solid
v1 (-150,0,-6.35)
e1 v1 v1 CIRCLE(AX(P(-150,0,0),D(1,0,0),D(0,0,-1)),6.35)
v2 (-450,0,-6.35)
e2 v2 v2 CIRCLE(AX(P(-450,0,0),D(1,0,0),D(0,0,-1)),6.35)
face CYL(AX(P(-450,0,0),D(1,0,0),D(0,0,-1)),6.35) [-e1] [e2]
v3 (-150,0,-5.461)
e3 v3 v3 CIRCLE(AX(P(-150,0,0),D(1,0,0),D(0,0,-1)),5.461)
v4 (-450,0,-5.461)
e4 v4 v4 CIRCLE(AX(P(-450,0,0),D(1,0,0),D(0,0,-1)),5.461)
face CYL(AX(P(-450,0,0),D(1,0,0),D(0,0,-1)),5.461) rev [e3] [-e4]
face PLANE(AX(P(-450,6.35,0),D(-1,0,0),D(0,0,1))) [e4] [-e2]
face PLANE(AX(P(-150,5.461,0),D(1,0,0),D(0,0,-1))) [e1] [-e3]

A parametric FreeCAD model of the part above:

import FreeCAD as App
import Part
import Sketcher

V = App.Vector
Q = App.Units.Quantity

doc = App.newDocument("Part")
params = doc.addObject("Spreadsheet::Sheet", "Params")
for row, (alias, value) in enumerate([
    ("sketch1_width", "300 mm"),
    ("revolution_angle", "360 deg"),
], start=1):
    params.set(f"A{row}", alias)
    params.set(f"B{row}", "=" + value)
    params.setAlias(f"B{row}", alias)

body = doc.addObject("PartDesign::Body", "Body")

# Sketch on XY plane
sketch1 = body.newObject("Sketcher::SketchObject", "Sketch")
sketch1.AttachmentSupport = (doc.getObject("XY_Plane"), [""])
sketch1.MapMode = "FlatFace"
sketch1.addGeometry([
    Part.LineSegment(V(-450, 6.3, 0), V(-450, 5.5, 0)),
    Part.LineSegment(V(-450, 5.5, 0), V(-150, 5.5, 0)),
    Part.LineSegment(V(-150, 5.5, 0), V(-150, 6.3, 0)),
    Part.LineSegment(V(-150, 6.3, 0), V(-450, 6.3, 0)),
], False)
sketch1.addConstraint([
    Sketcher.Constraint("Coincident", 0, 2, 1, 1),
    Sketcher.Constraint("Coincident", 1, 2, 2, 1),
    Sketcher.Constraint("Coincident", 2, 2, 3, 1),
    Sketcher.Constraint("Coincident", 3, 2, 0, 1),
    Sketcher.Constraint("Vertical", 0),
    Sketcher.Constraint("Horizontal", 1),
    Sketcher.Constraint("Vertical", 2),
    Sketcher.Constraint("Horizontal", 3),
    Sketcher.Constraint("DistanceX", 1, 1, 1, 2, Q("300 mm")),
    Sketcher.Constraint("DistanceX", 0, 2, -1, 1, Q("450 mm")),
    Sketcher.Constraint("DistanceY", 0, 2, 0, 1, Q("0.889 mm")),
    Sketcher.Constraint("DistanceY", -1, 1, 2, 2, Q("6.35 mm")),
])
sketch1.setExpression("Constraints[8]", "Params.sketch1_width")
revolution = body.newObject("PartDesign::Revolution", "Revolution")
revolution.Profile = sketch1
revolution.ReferenceAxis = (sketch1, ["H_Axis"])
revolution.setExpression("Angle", "Params.revolution_angle")

doc.recompute()
